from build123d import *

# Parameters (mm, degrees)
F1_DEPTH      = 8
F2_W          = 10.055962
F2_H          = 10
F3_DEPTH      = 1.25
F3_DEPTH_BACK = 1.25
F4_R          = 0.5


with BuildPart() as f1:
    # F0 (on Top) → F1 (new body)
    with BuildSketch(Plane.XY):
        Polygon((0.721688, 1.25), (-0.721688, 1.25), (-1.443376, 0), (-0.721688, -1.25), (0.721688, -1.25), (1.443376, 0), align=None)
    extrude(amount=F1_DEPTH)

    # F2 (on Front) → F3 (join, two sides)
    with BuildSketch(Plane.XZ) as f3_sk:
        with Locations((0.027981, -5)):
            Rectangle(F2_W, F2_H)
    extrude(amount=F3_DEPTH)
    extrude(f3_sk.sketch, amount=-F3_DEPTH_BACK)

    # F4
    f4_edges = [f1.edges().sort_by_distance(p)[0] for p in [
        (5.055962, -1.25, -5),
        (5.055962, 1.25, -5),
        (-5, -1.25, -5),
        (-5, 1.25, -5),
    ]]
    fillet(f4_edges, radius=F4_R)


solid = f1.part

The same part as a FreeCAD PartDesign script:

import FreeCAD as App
import Part
import Sketcher

V = App.Vector
Q = App.Units.Quantity


def edges_at(feature, points):
    """Names of the edges that pass closest to the given points."""
    edges = feature.Shape.Edges
    near = lambda p: min(range(len(edges)), key=lambda i: edges[i].distToShape(Part.Vertex(*p))[0])
    return sorted({f"Edge{near(p) + 1}" for p in points})


def add_polygon(sketch, points):
    """Adds a closed chain of lines whose ends are joined by coincident constraints."""
    first, n = sketch.GeometryCount, len(points)
    for a, b in zip(points, points[1:] + points[:1]):
        sketch.addGeometry(Part.LineSegment(App.Vector(*a, 0), App.Vector(*b, 0)), False)
    for i in range(n):
        sketch.addConstraint(Sketcher.Constraint("Coincident", first + i, 2, first + (i + 1) % n, 1))

doc = App.newDocument("Part")
params = doc.addObject("Spreadsheet::Sheet", "Params")
for row, (alias, value) in enumerate([
    ("pad1_length", "8 mm"),
    ("sketch2_height", "10 mm"),
    ("pad2_length", "1.25 mm"),
    ("pad2_length2", "1.25 mm"),
    ("fillet_radius", "0.5 mm"),
], start=1):
    params.set(f"A{row}", alias)
    params.set(f"B{row}", "=" + value)
    params.setAlias(f"B{row}", alias)

body = doc.addObject("PartDesign::Body", "Body")

sketch1 = body.newObject("Sketcher::SketchObject", "Sketch")
sketch1.AttachmentSupport = (doc.getObject("XY_Plane"), [""])
sketch1.MapMode = "FlatFace"
add_polygon(sketch1, [(0.7, 1.2), (-0.7, 1.2), (-1.4, 0), (-0.7, -1.2), (0.7, -1.2), (1.4, 0)])
sketch1.addConstraint(Sketcher.Constraint("Horizontal", 0))
sketch1.addConstraint(Sketcher.Constraint("Horizontal", 3))
sketch1.addConstraint(Sketcher.Constraint("Symmetric", 0, 2, 3, 2, -1, 1))
sketch1.addConstraint(Sketcher.Constraint("Symmetric", 1, 2, 4, 2, -1, 1))
sketch1.addConstraint(Sketcher.Constraint("PointOnObject", 1, 2, -1))
sketch1.addConstraint(Sketcher.Constraint("Parallel", 2, 5))
sketch1.addConstraint(Sketcher.Constraint("Vertical", 0, 2, 2, 2))
sketch1.addConstraint(Sketcher.Constraint("Angle", 1, Q("-120.000006 deg")))
sketch1.addConstraint(Sketcher.Constraint("DistanceY", 2, 2, 0, 2, Q("2.5 mm")))
sketch1.addConstraint(Sketcher.Constraint("DistanceX", 0, 2, 0, 1, Q("1.443376 mm")))
pad1 = body.newObject("PartDesign::Pad", "Pad")
pad1.Profile = sketch1
pad1.setExpression("Length", "Params.pad1_length")

sketch2 = body.newObject("Sketcher::SketchObject", "Sketch001")
sketch2.AttachmentSupport = (doc.getObject("XZ_Plane"), [""])
sketch2.MapMode = "FlatFace"
add_polygon(sketch2, [(-5, 0), (-5, -10), (5, -10), (5, 0)])
sketch2.addConstraint(Sketcher.Constraint("Vertical", 0))
sketch2.addConstraint(Sketcher.Constraint("Horizontal", 1))
sketch2.addConstraint(Sketcher.Constraint("Vertical", 2))
sketch2.addConstraint(Sketcher.Constraint("Horizontal", 3))
sketch2.addConstraint(Sketcher.Constraint("PointOnObject", 2, 2, -1))
sketch2.addConstraint(Sketcher.Constraint("DistanceY", 0, 2, 0, 1, Q("10 mm")))
sketch2.addConstraint(Sketcher.Constraint("DistanceX", 0, 2, -1, 1, Q("5 mm")))
sketch2.addConstraint(Sketcher.Constraint("DistanceX", 1, 1, 1, 2, Q("10.055962 mm")))
sketch2.setExpression("Constraints[9]", "Params.sketch2_height")
pad2 = body.newObject("PartDesign::Pad", "Pad001")
pad2.Profile = sketch2
pad2.Type = "TwoLengths"
pad2.setExpression("Length", "Params.pad2_length")
pad2.setExpression("Length2", "Params.pad2_length2")
doc.recompute()

fillet = body.newObject("PartDesign::Fillet", "Fillet")
fillet.Base = (pad2, edges_at(pad2, [
    (5.056, -1.25, -5),
    (5.056, 1.25, -5),
    (-5, -1.25, -5),
    (-5, 1.25, -5),
]))
fillet.setExpression("Radius", "Params.fillet_radius")

doc.recompute()
